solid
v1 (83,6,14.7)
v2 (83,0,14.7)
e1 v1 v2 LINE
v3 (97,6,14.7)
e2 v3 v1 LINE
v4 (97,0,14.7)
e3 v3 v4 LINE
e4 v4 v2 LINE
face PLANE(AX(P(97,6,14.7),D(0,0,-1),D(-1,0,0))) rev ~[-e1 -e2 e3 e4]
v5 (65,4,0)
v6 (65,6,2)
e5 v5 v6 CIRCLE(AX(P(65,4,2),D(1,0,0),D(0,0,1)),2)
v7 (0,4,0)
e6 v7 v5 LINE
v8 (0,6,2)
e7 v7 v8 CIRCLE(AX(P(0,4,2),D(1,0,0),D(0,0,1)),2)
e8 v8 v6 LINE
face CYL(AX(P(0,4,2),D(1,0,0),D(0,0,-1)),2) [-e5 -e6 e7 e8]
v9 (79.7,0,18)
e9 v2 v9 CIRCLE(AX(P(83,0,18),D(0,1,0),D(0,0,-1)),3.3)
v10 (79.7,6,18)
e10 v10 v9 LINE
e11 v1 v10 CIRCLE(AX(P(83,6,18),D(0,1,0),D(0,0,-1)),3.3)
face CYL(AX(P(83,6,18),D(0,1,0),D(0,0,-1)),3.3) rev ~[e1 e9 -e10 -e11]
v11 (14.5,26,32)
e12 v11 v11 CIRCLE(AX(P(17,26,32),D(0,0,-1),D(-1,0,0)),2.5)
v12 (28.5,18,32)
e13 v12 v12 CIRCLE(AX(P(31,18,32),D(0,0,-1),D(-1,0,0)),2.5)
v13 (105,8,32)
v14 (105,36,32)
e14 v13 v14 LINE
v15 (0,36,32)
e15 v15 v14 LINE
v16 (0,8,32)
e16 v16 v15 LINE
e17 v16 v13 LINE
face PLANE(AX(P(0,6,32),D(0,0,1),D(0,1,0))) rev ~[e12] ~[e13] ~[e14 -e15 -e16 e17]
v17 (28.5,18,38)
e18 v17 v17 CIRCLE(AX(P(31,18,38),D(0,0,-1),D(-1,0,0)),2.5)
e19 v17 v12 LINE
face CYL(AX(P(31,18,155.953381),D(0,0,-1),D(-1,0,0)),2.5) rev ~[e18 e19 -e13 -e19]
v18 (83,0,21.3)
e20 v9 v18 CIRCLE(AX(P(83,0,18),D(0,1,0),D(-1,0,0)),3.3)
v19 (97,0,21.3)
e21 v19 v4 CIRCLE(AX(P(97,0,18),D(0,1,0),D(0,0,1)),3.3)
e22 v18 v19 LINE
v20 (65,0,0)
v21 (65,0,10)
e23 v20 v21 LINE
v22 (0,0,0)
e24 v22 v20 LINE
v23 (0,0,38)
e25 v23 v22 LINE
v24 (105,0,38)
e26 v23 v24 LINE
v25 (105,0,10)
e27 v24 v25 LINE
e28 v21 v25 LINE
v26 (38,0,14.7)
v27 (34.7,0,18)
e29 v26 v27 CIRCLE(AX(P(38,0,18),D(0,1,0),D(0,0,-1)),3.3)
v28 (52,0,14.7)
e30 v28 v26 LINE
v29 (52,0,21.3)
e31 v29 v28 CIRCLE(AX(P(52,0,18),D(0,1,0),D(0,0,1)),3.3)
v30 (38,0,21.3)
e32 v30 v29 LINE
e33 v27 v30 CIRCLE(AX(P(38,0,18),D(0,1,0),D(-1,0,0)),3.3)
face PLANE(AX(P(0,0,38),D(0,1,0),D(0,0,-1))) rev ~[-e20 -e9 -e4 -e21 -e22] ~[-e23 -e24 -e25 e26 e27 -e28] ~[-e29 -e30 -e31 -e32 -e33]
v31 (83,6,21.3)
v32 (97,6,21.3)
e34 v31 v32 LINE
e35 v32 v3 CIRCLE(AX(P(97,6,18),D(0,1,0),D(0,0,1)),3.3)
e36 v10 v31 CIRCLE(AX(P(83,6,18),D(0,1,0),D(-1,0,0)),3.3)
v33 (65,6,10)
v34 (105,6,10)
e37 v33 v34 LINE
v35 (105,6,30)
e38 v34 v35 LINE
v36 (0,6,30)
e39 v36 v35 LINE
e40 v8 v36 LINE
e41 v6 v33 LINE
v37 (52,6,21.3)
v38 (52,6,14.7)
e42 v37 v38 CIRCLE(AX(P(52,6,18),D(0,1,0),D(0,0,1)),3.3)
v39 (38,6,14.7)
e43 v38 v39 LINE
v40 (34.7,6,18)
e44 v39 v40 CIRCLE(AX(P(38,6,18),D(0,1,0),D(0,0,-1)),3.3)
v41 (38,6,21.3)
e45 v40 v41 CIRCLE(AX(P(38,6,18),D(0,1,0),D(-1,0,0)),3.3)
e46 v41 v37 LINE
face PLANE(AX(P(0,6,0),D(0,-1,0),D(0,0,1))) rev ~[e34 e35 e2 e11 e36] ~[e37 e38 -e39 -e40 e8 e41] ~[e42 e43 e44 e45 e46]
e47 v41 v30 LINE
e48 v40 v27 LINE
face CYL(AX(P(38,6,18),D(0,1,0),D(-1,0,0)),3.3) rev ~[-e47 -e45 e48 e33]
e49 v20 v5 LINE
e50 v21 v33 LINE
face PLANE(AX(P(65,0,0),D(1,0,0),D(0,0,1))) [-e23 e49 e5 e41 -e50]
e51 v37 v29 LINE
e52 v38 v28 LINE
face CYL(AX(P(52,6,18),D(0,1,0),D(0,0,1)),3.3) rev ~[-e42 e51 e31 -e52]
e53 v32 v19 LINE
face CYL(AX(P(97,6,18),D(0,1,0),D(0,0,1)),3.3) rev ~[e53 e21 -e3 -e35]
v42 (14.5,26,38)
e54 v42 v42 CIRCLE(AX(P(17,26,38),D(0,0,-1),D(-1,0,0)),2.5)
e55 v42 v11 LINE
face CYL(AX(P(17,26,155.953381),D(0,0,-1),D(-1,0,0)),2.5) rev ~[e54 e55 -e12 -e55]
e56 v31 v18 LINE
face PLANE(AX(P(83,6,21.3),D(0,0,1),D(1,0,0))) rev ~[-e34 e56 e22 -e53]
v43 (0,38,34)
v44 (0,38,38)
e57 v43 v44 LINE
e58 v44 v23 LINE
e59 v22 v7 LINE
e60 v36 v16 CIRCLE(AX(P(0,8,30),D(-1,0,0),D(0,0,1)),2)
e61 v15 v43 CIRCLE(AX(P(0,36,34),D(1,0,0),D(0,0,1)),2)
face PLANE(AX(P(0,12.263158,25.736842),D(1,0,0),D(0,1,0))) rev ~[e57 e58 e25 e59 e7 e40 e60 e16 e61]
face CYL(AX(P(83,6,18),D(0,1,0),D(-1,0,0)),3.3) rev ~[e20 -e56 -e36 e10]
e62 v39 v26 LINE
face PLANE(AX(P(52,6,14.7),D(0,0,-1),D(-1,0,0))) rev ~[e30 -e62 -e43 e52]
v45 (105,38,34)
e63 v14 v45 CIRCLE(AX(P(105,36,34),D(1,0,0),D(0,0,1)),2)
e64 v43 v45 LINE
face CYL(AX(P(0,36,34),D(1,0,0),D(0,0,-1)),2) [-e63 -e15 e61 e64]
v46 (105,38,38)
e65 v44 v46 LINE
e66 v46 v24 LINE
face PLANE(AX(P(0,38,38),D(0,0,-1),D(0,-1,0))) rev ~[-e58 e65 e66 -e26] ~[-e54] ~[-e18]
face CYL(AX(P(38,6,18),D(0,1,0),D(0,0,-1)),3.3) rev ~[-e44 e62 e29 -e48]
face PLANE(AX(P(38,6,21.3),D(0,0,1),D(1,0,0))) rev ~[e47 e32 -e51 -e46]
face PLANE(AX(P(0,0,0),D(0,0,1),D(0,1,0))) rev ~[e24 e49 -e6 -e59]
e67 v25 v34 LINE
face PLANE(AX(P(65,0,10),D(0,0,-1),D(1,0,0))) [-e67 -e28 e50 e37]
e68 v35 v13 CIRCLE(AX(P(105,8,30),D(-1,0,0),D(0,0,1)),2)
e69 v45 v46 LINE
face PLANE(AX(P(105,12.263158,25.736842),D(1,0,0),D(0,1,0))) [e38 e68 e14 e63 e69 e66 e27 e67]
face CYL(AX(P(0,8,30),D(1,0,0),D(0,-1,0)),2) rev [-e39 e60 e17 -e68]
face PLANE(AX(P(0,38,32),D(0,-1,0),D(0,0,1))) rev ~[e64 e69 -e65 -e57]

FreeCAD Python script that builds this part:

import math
import FreeCAD as App
import Part
import Sketcher

V = App.Vector


def edges_at(feature, points):
    """Names of the edges that pass closest to the given points."""
    edges = feature.Shape.Edges
    near = lambda p: min(range(len(edges)), key=lambda i: edges[i].distToShape(Part.Vertex(*p))[0])
    return sorted({f"Edge{near(p) + 1}" for p in points})

doc = App.newDocument("Part")
body = doc.addObject("PartDesign::Body", "Body")

# Sketch on YZ plane
sketch1 = body.newObject("Sketcher::SketchObject", "Sketch")
sketch1.AttachmentSupport = (doc.getObject("YZ_Plane"), [""])
sketch1.MapMode = "FlatFace"
sketch1.addGeometry([
    Part.LineSegment(V(0, 38, 0), V(0, 0, 0)),  # 0
    Part.LineSegment(V(0, 0, 0), V(6, 0, 0)),  # 1
    Part.LineSegment(V(6, 0, 0), V(6, 32, 0)),  # 2
    Part.LineSegment(V(6, 32, 0), V(38, 32, 0)),  # 3
    Part.LineSegment(V(38, 32, 0), V(38, 38, 0)),  # 4
    Part.LineSegment(V(38, 38, 0), V(0, 38, 0)),  # 5
], False)
sketch1.addConstraint([
    Sketcher.Constraint("Coincident", 0, 2, 1, 1),
    Sketcher.Constraint("Coincident", 1, 2, 2, 1),
    Sketcher.Constraint("Coincident", 2, 2, 3, 1),
    Sketcher.Constraint("Coincident", 3, 2, 4, 1),
    Sketcher.Constraint("Coincident", 4, 2, 5, 1),
    Sketcher.Constraint("Coincident", 5, 2, 0, 1),
    Sketcher.Constraint("Vertical", 0),
    Sketcher.Constraint("Horizontal", 1),
    Sketcher.Constraint("Vertical", 2),
    Sketcher.Constraint("Horizontal", 3),
    Sketcher.Constraint("Vertical", 4),
    Sketcher.Constraint("Horizontal", 5),
    Sketcher.Constraint("Coincident", 0, 2, -1, 1),
    Sketcher.Constraint("Equal", 5, 0),
    Sketcher.Constraint("Equal", 3, 2),
    Sketcher.Constraint("DistanceX", 1, 1, 1, 2, 6.0),
    Sketcher.Constraint("DistanceX", 3, 1, 3, 2, 32.0),
])
pad1 = body.newObject("PartDesign::Pad", "Pad")
pad1.Profile = sketch1
pad1.Length = 105

# Sketch on XZ plane
sketch2 = body.newObject("Sketcher::SketchObject", "Sketch001")
sketch2.AttachmentSupport = (doc.getObject("XZ_Plane"), [""])
sketch2.MapMode = "FlatFace"
sketch2.addGeometry([
    Part.LineSegment(V(65, 10, 0), V(65, 0, 0)),
    Part.LineSegment(V(65, 0, 0), V(105, 0, 0)),
    Part.LineSegment(V(105, 0, 0), V(105, 10, 0)),
    Part.LineSegment(V(105, 10, 0), V(65, 10, 0)),
], False)
sketch2.addConstraint([
    Sketcher.Constraint("Coincident", 0, 2, 1, 1),
    Sketcher.Constraint("Coincident", 1, 2, 2, 1),
    Sketcher.Constraint("Coincident", 2, 2, 3, 1),
    Sketcher.Constraint("Coincident", 3, 2, 0, 1),
    Sketcher.Constraint("Vertical", 0),
    Sketcher.Constraint("Horizontal", 1),
    Sketcher.Constraint("Vertical", 2),
    Sketcher.Constraint("Horizontal", 3),
    Sketcher.Constraint("PointOnObject", 0, 2, -1),
    Sketcher.Constraint("DistanceX", 1, 1, 1, 2, 40.0),
    Sketcher.Constraint("DistanceY", 0, 2, 0, 1, 10.0),
    Sketcher.Constraint("DistanceX", -1, 1, 0, 2, 65.0),
])
pocket1 = body.newObject("PartDesign::Pocket", "Pocket")
pocket1.Profile = sketch2
pocket1.Length = 25

# Sketch on XZ plane
sketch3 = body.newObject("Sketcher::SketchObject", "Sketch002")
sketch3.AttachmentSupport = (doc.getObject("XZ_Plane"), [""])
sketch3.MapMode = "FlatFace"
sketch3.AttachmentOffset = App.Placement(V(0, 0, -6), App.Rotation())
sketch3.addGeometry([
    Part.ArcOfCircle(Part.Circle(V(97, 18, 0), V(0, 0, 1), 3.3), math.radians(-90), math.radians(90)),  # 0
    Part.LineSegment(V(97, 14.7, 0), V(83, 14.7, 0)),  # 1
    Part.ArcOfCircle(Part.Circle(V(83, 18, 0), V(0, 0, 1), 3.3), math.radians(180), math.radians(270)),  # 2
    Part.ArcOfCircle(Part.Circle(V(83, 18, 0), V(0, 0, 1), 3.3), math.radians(90), math.radians(180)),  # 3
    Part.LineSegment(V(83, 21.3, 0), V(97, 21.3, 0)),  # 4
    Part.ArcOfCircle(Part.Circle(V(52, 18, 0), V(0, 0, 1), 3.3), math.radians(-90), math.radians(90)),  # 5
    Part.LineSegment(V(52, 14.7, 0), V(38, 14.7, 0)),  # 6
    Part.ArcOfCircle(Part.Circle(V(38, 18, 0), V(0, 0, 1), 3.3), math.radians(180), math.radians(270)),  # 7
    Part.ArcOfCircle(Part.Circle(V(38, 18, 0), V(0, 0, 1), 3.3), math.radians(90), math.radians(180)),  # 8
    Part.LineSegment(V(38, 21.3, 0), V(52, 21.3, 0)),  # 9
], False)
sketch3.addConstraint([
    Sketcher.Constraint("Tangent", 0, 1, 1, 1),
    Sketcher.Constraint("Tangent", 1, 2, 2, 2),
    Sketcher.Constraint("Tangent", 2, 1, 3, 2),
    Sketcher.Constraint("Tangent", 3, 1, 4, 1),
    Sketcher.Constraint("Tangent", 4, 2, 0, 2),
    Sketcher.Constraint("Tangent", 5, 1, 6, 1),
    Sketcher.Constraint("Tangent", 6, 2, 7, 2),
    Sketcher.Constraint("Tangent", 7, 1, 8, 2),
    Sketcher.Constraint("Tangent", 8, 1, 9, 1),
    Sketcher.Constraint("Tangent", 9, 2, 5, 2),
    Sketcher.Constraint("Horizontal", 1),
    Sketcher.Constraint("Horizontal", 4),
    Sketcher.Constraint("Horizontal", 6),
    Sketcher.Constraint("Horizontal", 9),
    Sketcher.Constraint("Equal", 0, 2),
    Sketcher.Constraint("Equal", 3, 5),
    Sketcher.Constraint("Equal", 5, 7),
    Sketcher.Constraint("Horizontal", 3, 3, 5, 3),
    Sketcher.Constraint("Horizontal", 8, 3, 2, 1),
    Sketcher.Constraint("Horizontal", 2, 1, 7, 1),
    Sketcher.Constraint("Equal", 4, 6),
    Sketcher.Constraint("Radius", 0, 3.3),
    Sketcher.Constraint("DistanceX", 1, 2, 1, 1, 14.0),
    Sketcher.Constraint("DistanceX", -1, 1, 0, 3, 97.0),
    Sketcher.Constraint("DistanceY", -1, 1, 0, 3, 18.0),
    Sketcher.Constraint("DistanceX", -1, 1, 5, 3, 52.0),
])
pocket2 = body.newObject("PartDesign::Pocket", "Pocket001")
pocket2.Profile = sketch3
pocket2.Length = 25
pocket2.Reversed = True

# Sketch on XY plane
sketch4 = body.newObject("Sketcher::SketchObject", "Sketch003")
sketch4.AttachmentSupport = (doc.getObject("XY_Plane"), [""])
sketch4.MapMode = "FlatFace"
sketch4.AttachmentOffset = App.Placement(V(0, 0, 38), App.Rotation())
sketch4.addGeometry([
    Part.Circle(V(31, 18, 0), V(0, 0, 1), 2.5),
    Part.Circle(V(17, 26, 0), V(0, 0, 1), 2.5),
], False)
sketch4.addConstraint([
    Sketcher.Constraint("Equal", 0, 1),
    Sketcher.Constraint("Diameter", 0, 5.0),
    Sketcher.Constraint("DistanceX", -1, 1, 0, 3, 31.0),
    Sketcher.Constraint("DistanceY", -1, 1, 0, 3, 18.0),
    Sketcher.Constraint("DistanceX", -1, 1, 1, 3, 17.0),
    Sketcher.Constraint("DistanceY", -1, 1, 1, 3, 26.0),
])
doc.recompute()
hole = body.newObject("PartDesign::Hole", "Hole")
hole.Profile = sketch4
hole.ThreadType = "None"
hole.Diameter = 5
hole.DepthType = "ThroughAll"
doc.recompute()

fillet = body.newObject("PartDesign::Fillet", "Fillet")
fillet.Base = (hole, edges_at(hole, [(52.5, 38, 32), (32.5, 6, 0)]))
fillet.Radius = 2
doc.recompute()

fillet2 = body.newObject("PartDesign::Fillet", "Fillet001")
fillet2.Base = (fillet, edges_at(fillet, [(52.5, 6, 32)]))
fillet2.Radius = 2

doc.recompute()
